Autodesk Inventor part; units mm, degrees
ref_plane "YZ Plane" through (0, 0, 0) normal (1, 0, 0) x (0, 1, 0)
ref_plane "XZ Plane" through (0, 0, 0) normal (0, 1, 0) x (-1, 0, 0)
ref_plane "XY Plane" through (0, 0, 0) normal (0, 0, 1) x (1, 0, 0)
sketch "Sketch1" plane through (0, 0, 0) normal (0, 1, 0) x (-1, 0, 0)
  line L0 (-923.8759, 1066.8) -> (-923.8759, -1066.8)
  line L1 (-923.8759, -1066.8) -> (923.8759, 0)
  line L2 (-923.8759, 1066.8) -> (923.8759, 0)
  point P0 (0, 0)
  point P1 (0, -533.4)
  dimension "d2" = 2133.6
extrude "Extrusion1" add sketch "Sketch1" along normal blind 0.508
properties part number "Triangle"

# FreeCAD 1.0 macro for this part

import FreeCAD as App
import Part
import Sketcher
Q = App.Units.Quantity

doc = App.newDocument("Part")
params = doc.addObject("Spreadsheet::Sheet", "Params")
for row, (alias, value) in enumerate([
    ("sketch1_height", "84 in"),
    ("sketch1_length", "84 in"),
    ("pad1_length", "0.02 in"),
], start=1):
    params.set(f"A{row}", alias)
    params.set(f"B{row}", "=" + value)
    params.setAlias(f"B{row}", alias)

body = doc.addObject("PartDesign::Body", "Body")

# Sketch on XZ plane
sketch1 = doc.addObject("Sketcher::SketchObject", "Sketch")
body.addObject(sketch1)
sketch1.AttachmentSupport = (doc.XZ_Plane, [""])
sketch1.MapMode = "FlatFace"
sketch1.addGeometry([
    Part.LineSegment(App.Vector(-923.8759, 0, 0), App.Vector(923.8759, 1066.8, 0)),
    Part.LineSegment(App.Vector(923.8759, 1066.8, 0), App.Vector(923.8759, -1066.8, 0)),
    Part.LineSegment(App.Vector(923.8759, -1066.8, 0), App.Vector(-923.8759, 0, 0)),
], False)
sketch1.addConstraint([
    Sketcher.Constraint("Coincident", 0, 2, 1, 1),
    Sketcher.Constraint("Coincident", 1, 2, 2, 1),
    Sketcher.Constraint("Coincident", 2, 2, 0, 1),
    Sketcher.Constraint("Vertical", 1),
    Sketcher.Constraint("PointOnObject", 2, 2, -1),
    Sketcher.Constraint("Equal", 0, 2),
    Sketcher.Constraint("DistanceY", 1, 2, 1, 1, Q("84 in")),
    Sketcher.Constraint("Distance", 0, Q("84 in")),
    Sketcher.Constraint("DistanceX", -1, 1, 0, 2, Q("923.876 mm")),
])
sketch1.setExpression("Constraints[6]", "Params.sketch1_height")
sketch1.setExpression("Constraints[7]", "Params.sketch1_length")
pad1 = doc.addObject("PartDesign::Pad", "Pad")
body.addObject(pad1)
pad1.Profile = sketch1
pad1.setExpression("Length", "Params.pad1_length")
pad1.Reversed = True

doc.recompute()
